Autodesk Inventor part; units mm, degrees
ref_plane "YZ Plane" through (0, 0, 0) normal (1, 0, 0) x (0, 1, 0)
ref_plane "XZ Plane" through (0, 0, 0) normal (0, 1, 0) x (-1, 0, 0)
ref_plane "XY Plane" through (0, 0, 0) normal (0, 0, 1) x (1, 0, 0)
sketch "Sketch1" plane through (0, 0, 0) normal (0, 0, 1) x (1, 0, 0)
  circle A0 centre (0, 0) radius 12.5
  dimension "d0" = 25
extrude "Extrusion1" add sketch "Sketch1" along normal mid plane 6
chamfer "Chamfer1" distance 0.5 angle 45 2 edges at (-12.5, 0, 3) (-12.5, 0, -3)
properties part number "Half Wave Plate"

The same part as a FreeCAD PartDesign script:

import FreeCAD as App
import Part
import Sketcher
from FreeCAD import Vector
Q = App.Units.Quantity


def edges_at(feature, points):
    """Names of the edges that pass closest to the given points."""
    edges = feature.Shape.Edges
    near = lambda p: min(range(len(edges)), key=lambda i: edges[i].distToShape(Part.Vertex(*p))[0])
    return sorted({f"Edge{near(p) + 1}" for p in points})

doc = App.newDocument("Part")
body = doc.addObject("PartDesign::Body", "Body")

# Sketch on XY plane
sketch1 = body.newObject("Sketcher::SketchObject", "Sketch")
sketch1.AttachmentSupport = (doc.getObject("XY_Plane"), [""])
sketch1.MapMode = "FlatFace"
sketch1.addGeometry(Part.Circle(Vector(0, 0, 0), Vector(0, 0, 1), 12.5), False)
sketch1.addConstraint([
    Sketcher.Constraint("Coincident", 0, 3, -1, 1),
    Sketcher.Constraint("Diameter", 0, Q("25 mm")),
])
pad1 = body.newObject("PartDesign::Pad", "Pad")
pad1.Profile = sketch1
pad1.Length = 6
pad1.Midplane = True
doc.recompute()

chamfer = body.newObject("PartDesign::Chamfer", "Chamfer")
chamfer.Base = (pad1, edges_at(pad1, [(-12.5, 0, 3), (-12.5, 0, -3)]))
chamfer.Size = 0.5

doc.recompute()
